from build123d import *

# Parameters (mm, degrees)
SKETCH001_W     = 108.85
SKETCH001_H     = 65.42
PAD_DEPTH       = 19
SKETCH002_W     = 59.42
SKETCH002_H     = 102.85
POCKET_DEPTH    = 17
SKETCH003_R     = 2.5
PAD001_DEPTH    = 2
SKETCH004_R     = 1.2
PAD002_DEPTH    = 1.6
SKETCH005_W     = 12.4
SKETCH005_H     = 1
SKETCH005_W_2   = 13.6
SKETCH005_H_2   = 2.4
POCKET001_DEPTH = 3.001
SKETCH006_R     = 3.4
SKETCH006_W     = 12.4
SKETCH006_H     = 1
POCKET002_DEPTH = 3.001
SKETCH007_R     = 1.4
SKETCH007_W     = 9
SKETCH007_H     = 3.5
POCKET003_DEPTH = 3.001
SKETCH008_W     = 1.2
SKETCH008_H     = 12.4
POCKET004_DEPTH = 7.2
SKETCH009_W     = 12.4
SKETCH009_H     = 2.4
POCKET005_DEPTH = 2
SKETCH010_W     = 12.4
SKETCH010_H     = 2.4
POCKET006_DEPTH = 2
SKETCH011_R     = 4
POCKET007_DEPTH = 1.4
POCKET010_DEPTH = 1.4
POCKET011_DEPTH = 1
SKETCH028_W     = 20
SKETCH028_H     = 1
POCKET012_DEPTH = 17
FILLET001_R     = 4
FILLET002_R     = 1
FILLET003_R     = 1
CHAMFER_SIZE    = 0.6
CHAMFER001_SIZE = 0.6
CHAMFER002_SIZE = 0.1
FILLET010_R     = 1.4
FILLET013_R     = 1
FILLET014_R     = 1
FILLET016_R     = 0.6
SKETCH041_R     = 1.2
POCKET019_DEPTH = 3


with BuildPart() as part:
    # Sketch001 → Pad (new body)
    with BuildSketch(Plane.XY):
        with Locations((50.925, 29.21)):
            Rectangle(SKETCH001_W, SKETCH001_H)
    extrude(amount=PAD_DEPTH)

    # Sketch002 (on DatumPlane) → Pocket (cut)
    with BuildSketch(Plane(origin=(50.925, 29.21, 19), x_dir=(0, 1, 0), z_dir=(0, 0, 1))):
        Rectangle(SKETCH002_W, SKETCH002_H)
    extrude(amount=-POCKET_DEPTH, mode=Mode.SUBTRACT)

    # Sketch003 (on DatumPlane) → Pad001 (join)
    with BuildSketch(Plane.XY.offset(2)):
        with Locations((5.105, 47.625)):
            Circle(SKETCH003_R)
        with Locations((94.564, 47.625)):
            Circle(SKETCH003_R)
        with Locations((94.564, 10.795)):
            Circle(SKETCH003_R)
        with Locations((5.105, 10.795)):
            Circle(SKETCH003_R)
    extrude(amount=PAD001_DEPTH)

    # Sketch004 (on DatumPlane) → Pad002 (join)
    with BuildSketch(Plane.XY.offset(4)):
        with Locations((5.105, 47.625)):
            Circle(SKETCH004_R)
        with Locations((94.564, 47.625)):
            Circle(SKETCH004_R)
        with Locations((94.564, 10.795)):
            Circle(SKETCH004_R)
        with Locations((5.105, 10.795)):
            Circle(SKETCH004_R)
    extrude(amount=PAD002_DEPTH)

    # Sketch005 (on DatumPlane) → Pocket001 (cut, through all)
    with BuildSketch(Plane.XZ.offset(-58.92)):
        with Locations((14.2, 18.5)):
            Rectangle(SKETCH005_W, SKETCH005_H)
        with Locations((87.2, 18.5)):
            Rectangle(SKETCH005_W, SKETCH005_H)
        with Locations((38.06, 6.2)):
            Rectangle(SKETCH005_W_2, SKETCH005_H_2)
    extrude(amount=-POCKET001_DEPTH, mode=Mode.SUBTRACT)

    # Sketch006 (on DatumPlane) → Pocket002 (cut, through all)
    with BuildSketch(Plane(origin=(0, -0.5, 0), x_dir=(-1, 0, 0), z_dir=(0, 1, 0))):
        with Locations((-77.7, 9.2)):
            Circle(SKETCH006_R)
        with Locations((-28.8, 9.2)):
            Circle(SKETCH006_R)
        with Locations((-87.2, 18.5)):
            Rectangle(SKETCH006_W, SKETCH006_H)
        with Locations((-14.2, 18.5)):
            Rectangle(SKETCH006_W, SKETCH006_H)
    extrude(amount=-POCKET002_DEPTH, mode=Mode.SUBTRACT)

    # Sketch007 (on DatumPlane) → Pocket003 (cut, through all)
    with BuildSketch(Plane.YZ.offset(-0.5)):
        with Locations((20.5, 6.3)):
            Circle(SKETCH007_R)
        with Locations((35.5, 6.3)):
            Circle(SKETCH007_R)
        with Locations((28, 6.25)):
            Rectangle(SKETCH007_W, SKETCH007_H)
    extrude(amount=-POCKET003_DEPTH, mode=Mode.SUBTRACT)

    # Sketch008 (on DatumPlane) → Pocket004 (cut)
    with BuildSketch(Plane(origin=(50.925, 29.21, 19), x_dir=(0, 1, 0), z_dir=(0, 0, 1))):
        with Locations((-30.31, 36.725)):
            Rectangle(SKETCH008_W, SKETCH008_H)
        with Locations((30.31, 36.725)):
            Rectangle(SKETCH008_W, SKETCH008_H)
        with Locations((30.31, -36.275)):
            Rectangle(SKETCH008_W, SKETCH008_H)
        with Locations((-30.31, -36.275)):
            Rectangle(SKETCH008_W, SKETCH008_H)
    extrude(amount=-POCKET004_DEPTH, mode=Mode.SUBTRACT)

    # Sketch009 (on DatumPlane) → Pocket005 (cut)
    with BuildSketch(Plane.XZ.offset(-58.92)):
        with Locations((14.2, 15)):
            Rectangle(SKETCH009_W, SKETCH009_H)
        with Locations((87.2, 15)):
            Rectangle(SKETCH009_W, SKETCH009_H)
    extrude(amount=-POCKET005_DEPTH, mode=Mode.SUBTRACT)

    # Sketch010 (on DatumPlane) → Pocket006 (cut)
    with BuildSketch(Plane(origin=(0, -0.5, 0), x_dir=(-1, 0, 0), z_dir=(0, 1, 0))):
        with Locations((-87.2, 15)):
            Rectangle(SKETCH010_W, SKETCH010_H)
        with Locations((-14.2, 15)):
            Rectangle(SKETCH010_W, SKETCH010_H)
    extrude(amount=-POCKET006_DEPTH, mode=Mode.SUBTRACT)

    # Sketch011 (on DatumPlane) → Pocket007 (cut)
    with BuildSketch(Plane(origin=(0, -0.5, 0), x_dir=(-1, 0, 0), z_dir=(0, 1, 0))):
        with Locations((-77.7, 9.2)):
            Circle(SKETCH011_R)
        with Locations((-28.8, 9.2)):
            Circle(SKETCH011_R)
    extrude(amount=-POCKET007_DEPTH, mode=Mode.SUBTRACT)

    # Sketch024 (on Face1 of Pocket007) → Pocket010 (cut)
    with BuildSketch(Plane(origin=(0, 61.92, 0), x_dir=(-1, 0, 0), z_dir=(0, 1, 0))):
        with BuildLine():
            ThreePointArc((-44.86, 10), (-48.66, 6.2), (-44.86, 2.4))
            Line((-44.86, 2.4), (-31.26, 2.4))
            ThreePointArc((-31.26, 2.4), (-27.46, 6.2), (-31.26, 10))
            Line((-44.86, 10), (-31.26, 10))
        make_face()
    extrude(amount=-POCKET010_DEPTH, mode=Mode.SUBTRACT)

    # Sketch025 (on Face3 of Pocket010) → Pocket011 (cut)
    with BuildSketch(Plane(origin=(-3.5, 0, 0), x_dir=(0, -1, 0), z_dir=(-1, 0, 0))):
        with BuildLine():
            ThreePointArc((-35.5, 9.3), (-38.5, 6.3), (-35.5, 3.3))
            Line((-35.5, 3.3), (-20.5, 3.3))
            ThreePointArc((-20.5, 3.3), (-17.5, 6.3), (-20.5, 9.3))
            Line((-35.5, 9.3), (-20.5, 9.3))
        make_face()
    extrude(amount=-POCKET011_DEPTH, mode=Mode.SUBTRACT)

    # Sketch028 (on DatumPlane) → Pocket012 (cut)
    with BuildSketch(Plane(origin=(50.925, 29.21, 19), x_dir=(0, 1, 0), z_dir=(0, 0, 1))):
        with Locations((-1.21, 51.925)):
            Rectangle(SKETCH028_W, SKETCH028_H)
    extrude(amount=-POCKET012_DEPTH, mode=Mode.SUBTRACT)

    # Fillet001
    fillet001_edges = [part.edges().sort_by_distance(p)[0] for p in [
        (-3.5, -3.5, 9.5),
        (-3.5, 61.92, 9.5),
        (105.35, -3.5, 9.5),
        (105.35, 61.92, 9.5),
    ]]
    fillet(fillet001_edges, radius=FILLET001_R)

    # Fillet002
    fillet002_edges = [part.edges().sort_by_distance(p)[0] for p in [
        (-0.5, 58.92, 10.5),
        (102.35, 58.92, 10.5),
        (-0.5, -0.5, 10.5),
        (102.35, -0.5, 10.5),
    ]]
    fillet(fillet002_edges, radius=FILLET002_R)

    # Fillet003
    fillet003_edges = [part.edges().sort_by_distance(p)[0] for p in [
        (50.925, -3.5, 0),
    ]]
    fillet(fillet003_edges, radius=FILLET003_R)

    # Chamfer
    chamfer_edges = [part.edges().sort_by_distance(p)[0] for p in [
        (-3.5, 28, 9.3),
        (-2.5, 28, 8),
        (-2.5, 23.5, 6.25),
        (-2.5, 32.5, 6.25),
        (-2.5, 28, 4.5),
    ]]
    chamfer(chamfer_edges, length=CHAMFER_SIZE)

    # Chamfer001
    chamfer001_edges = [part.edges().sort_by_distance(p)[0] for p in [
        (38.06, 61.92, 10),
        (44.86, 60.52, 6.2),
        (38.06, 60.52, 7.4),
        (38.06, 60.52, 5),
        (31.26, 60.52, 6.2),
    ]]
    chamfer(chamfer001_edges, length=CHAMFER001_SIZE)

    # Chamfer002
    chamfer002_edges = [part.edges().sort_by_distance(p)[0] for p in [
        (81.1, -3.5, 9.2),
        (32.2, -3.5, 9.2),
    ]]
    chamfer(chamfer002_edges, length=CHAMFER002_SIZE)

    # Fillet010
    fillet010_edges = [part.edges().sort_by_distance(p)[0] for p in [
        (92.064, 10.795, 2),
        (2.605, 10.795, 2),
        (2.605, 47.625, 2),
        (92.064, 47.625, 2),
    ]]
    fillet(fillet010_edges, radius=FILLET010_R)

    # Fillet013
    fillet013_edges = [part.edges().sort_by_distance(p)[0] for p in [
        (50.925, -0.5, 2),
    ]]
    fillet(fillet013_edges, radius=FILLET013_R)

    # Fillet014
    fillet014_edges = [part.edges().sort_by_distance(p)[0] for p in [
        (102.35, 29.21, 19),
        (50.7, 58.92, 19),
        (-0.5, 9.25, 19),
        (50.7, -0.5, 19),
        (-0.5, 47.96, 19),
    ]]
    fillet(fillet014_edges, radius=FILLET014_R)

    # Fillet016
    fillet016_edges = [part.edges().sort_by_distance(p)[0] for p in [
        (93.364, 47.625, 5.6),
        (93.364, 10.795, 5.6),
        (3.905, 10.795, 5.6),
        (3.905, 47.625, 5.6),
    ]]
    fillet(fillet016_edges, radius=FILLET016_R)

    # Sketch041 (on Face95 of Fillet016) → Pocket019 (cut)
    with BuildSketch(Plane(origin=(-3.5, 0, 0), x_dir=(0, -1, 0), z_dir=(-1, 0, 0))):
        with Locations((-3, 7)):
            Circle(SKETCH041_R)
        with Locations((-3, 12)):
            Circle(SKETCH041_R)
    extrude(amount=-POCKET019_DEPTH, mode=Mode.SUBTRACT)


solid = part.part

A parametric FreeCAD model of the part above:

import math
import FreeCAD as App
import Part
import Sketcher
from FreeCAD import Vector
Q = App.Units.Quantity


def edges_at(feature, points):
    """Names of the edges that pass closest to the given points."""
    edges = feature.Shape.Edges
    near = lambda p: min(range(len(edges)), key=lambda i: edges[i].distToShape(Part.Vertex(*p))[0])
    return sorted({f"Edge{near(p) + 1}" for p in points})


def add_polygon(sketch, points):
    """Adds a closed chain of lines whose ends are joined by coincident constraints."""
    first, n = sketch.GeometryCount, len(points)
    for a, b in zip(points, points[1:] + points[:1]):
        sketch.addGeometry(Part.LineSegment(App.Vector(*a, 0), App.Vector(*b, 0)), False)
    for i in range(n):
        sketch.addConstraint(Sketcher.Constraint("Coincident", first + i, 2, first + (i + 1) % n, 1))

doc = App.newDocument("Part")
body = doc.addObject("PartDesign::Body", "Body")

# Sketch on XY plane
sketch1 = doc.addObject("Sketcher::SketchObject", "Sketch")
body.addObject(sketch1)
sketch1.AttachmentSupport = (doc.XY_Plane, [""])
sketch1.MapMode = "FlatFace"
add_polygon(sketch1, [(-4, 62), (-4, -4), (105, -4), (105, 62)])  # lines 0-3
sketch1.addConstraint(Sketcher.Constraint("Vertical", 0))
sketch1.addConstraint(Sketcher.Constraint("Horizontal", 1))
sketch1.addConstraint(Sketcher.Constraint("Vertical", 2))
sketch1.addConstraint(Sketcher.Constraint("Horizontal", 3))
sketch1.addConstraint(Sketcher.Constraint("DistanceX", 1, 1, 1, 2, Q("108.85 mm")))
sketch1.addConstraint(Sketcher.Constraint("DistanceY", 0, 2, 0, 1, Q("65.42 mm")))
sketch1.addConstraint(Sketcher.Constraint("DistanceX", 0, 2, -1, 1, Q("3.5 mm")))
sketch1.addConstraint(Sketcher.Constraint("DistanceY", 0, 2, -1, 1, Q("3.5 mm")))
pad1 = doc.addObject("PartDesign::Pad", "Pad")
body.addObject(pad1)
pad1.Profile = sketch1
pad1.Length = 19

# Sketch on XY plane
sketch2 = doc.addObject("Sketcher::SketchObject", "Sketch001")
body.addObject(sketch2)
sketch2.AttachmentSupport = (doc.XY_Plane, [""])
sketch2.MapMode = "FlatFace"
sketch2.AttachmentOffset = App.Placement(Vector(0, 0, 19), App.Rotation())
add_polygon(sketch2, [(0, 0), (102, 0), (102, 59), (0, 59)])  # lines 0-3
sketch2.addConstraint(Sketcher.Constraint("Horizontal", 0))
sketch2.addConstraint(Sketcher.Constraint("Vertical", 1))
sketch2.addConstraint(Sketcher.Constraint("Horizontal", 2))
sketch2.addConstraint(Sketcher.Constraint("Vertical", 3))
sketch2.addConstraint(Sketcher.Constraint("DistanceX", 0, 1, 0, 2, Q("102.85 mm")))
sketch2.addConstraint(Sketcher.Constraint("DistanceY", 1, 1, 1, 2, Q("59.42 mm")))
sketch2.addConstraint(Sketcher.Constraint("DistanceY", 0, 2, -1, 1, Q("0.5 mm")))
sketch2.addConstraint(Sketcher.Constraint("DistanceX", 2, 2, -1, 1, Q("0.5 mm")))
pocket1 = doc.addObject("PartDesign::Pocket", "Pocket")
body.addObject(pocket1)
pocket1.Profile = sketch2
pocket1.Length = 17

# Sketch on XY plane
sketch3 = doc.addObject("Sketcher::SketchObject", "Sketch002")
body.addObject(sketch3)
sketch3.AttachmentSupport = (doc.XY_Plane, [""])
sketch3.MapMode = "FlatFace"
sketch3.AttachmentOffset = App.Placement(Vector(0, 0, 2), App.Rotation())
sketch3.addGeometry(Part.Circle(Vector(5.1, 47.6, 0), Vector(0, 0, 1), 2.5), False)
sketch3.addGeometry(Part.Circle(Vector(94.6, 47.6, 0), Vector(0, 0, 1), 2.5), False)
sketch3.addGeometry(Part.Circle(Vector(94.6, 10.8, 0), Vector(0, 0, 1), 2.5), False)
sketch3.addGeometry(Part.Circle(Vector(5.1, 10.8, 0), Vector(0, 0, 1), 2.5), False)
sketch3.addConstraint(Sketcher.Constraint("Equal", 0, 1))
sketch3.addConstraint(Sketcher.Constraint("Equal", 1, 2))
sketch3.addConstraint(Sketcher.Constraint("Equal", 2, 3))
sketch3.addConstraint(Sketcher.Constraint("Horizontal", 0, 3, 1, 3))
sketch3.addConstraint(Sketcher.Constraint("Horizontal", 2, 3, 3, 3))
sketch3.addConstraint(Sketcher.Constraint("Vertical", 1, 3, 2, 3))
sketch3.addConstraint(Sketcher.Constraint("Vertical", 0, 3, 3, 3))
sketch3.addConstraint(Sketcher.Constraint("Diameter", 0, Q("5 mm")))
sketch3.addConstraint(Sketcher.Constraint("DistanceY", 2, 3, 1, 3, Q("36.83 mm")))
sketch3.addConstraint(Sketcher.Constraint("DistanceX", -1, 1, 0, 3, Q("5.105 mm")))
sketch3.addConstraint(Sketcher.Constraint("DistanceY", -1, 1, 0, 3, Q("47.625 mm")))
sketch3.addConstraint(Sketcher.Constraint("DistanceX", -1, 1, 1, 3, Q("94.564 mm")))
pad2 = doc.addObject("PartDesign::Pad", "Pad001")
body.addObject(pad2)
pad2.Profile = sketch3
pad2.Length = 2

# Sketch on XY plane
sketch4 = doc.addObject("Sketcher::SketchObject", "Sketch003")
body.addObject(sketch4)
sketch4.AttachmentSupport = (doc.XY_Plane, [""])
sketch4.MapMode = "FlatFace"
sketch4.AttachmentOffset = App.Placement(Vector(0, 0, 4), App.Rotation())
sketch4.addGeometry(Part.Circle(Vector(5.1, 47.6, 0), Vector(0, 0, 1), 1.2), False)
sketch4.addGeometry(Part.Circle(Vector(94.6, 47.6, 0), Vector(0, 0, 1), 1.2), False)
sketch4.addGeometry(Part.Circle(Vector(94.6, 10.8, 0), Vector(0, 0, 1), 1.2), False)
sketch4.addGeometry(Part.Circle(Vector(5.1, 10.8, 0), Vector(0, 0, 1), 1.2), False)
sketch4.addConstraint(Sketcher.Constraint("Equal", 0, 1))
sketch4.addConstraint(Sketcher.Constraint("Equal", 1, 2))
sketch4.addConstraint(Sketcher.Constraint("Equal", 2, 3))
sketch4.addConstraint(Sketcher.Constraint("Horizontal", 0, 3, 1, 3))
sketch4.addConstraint(Sketcher.Constraint("Horizontal", 2, 3, 3, 3))
sketch4.addConstraint(Sketcher.Constraint("Vertical", 1, 3, 2, 3))
sketch4.addConstraint(Sketcher.Constraint("Vertical", 0, 3, 3, 3))
sketch4.addConstraint(Sketcher.Constraint("Diameter", 0, Q("2.4 mm")))
sketch4.addConstraint(Sketcher.Constraint("DistanceY", 2, 3, 1, 3, Q("36.83 mm")))
sketch4.addConstraint(Sketcher.Constraint("DistanceX", -1, 1, 0, 3, Q("5.105 mm")))
sketch4.addConstraint(Sketcher.Constraint("DistanceY", -1, 1, 0, 3, Q("47.625 mm")))
sketch4.addConstraint(Sketcher.Constraint("DistanceX", -1, 1, 1, 3, Q("94.564 mm")))
pad3 = doc.addObject("PartDesign::Pad", "Pad002")
body.addObject(pad3)
pad3.Profile = sketch4
pad3.Length = 1.6

# Sketch on XZ plane
sketch5 = doc.addObject("Sketcher::SketchObject", "Sketch004")
body.addObject(sketch5)
sketch5.AttachmentSupport = (doc.XZ_Plane, [""])
sketch5.MapMode = "FlatFace"
sketch5.AttachmentOffset = App.Placement(Vector(0, 0, -58.92), App.Rotation())
add_polygon(sketch5, [(8, 19), (8, 18), (20.4, 18), (20.4, 19)])  # lines 0-3
add_polygon(sketch5, [(81, 19), (81, 18), (93.4, 18), (93.4, 19)])  # lines 4-7
add_polygon(sketch5, [(31.3, 7.4), (31.3, 5), (44.9, 5), (44.9, 7.4)])  # lines 8-11
sketch5.addConstraint(Sketcher.Constraint("Vertical", 0))
sketch5.addConstraint(Sketcher.Constraint("Horizontal", 1))
sketch5.addConstraint(Sketcher.Constraint("Vertical", 2))
sketch5.addConstraint(Sketcher.Constraint("Horizontal", 3))
sketch5.addConstraint(Sketcher.Constraint("Vertical", 4))
sketch5.addConstraint(Sketcher.Constraint("Horizontal", 5))
sketch5.addConstraint(Sketcher.Constraint("Vertical", 6))
sketch5.addConstraint(Sketcher.Constraint("Horizontal", 7))
sketch5.addConstraint(Sketcher.Constraint("Vertical", 8))
sketch5.addConstraint(Sketcher.Constraint("Horizontal", 9))
sketch5.addConstraint(Sketcher.Constraint("Vertical", 10))
sketch5.addConstraint(Sketcher.Constraint("Horizontal", 11))
sketch5.addConstraint(Sketcher.Constraint("Horizontal", 1, 2, 4, 2))
sketch5.addConstraint(Sketcher.Constraint("Horizontal", 3, 2, 6, 2))
sketch5.addConstraint(Sketcher.Constraint("Equal", 3, 5))
sketch5.addConstraint(Sketcher.Constraint("DistanceY", 0, 2, 0, 1, Q("1 mm")))
sketch5.addConstraint(Sketcher.Constraint("DistanceX", 1, 1, 1, 2, Q("12.4 mm")))
sketch5.addConstraint(Sketcher.Constraint("DistanceX", 9, 1, 9, 2, Q("13.6 mm")))
sketch5.addConstraint(Sketcher.Constraint("DistanceY", 8, 2, 8, 1, Q("2.4 mm")))
sketch5.addConstraint(Sketcher.Constraint("DistanceX", -1, 1, 0, 2, Q("8 mm")))
sketch5.addConstraint(Sketcher.Constraint("DistanceY", -1, 1, 0, 2, Q("18 mm")))
sketch5.addConstraint(Sketcher.Constraint("DistanceX", -1, 1, 4, 2, Q("81 mm")))
sketch5.addConstraint(Sketcher.Constraint("DistanceY", -1, 1, 8, 2, Q("5 mm")))
sketch5.addConstraint(Sketcher.Constraint("DistanceX", -1, 1, 8, 2, Q("31.26 mm")))
pocket2 = doc.addObject("PartDesign::Pocket", "Pocket001")
body.addObject(pocket2)
pocket2.Profile = sketch5
pocket2.Type = "ThroughAll"

# Sketch on XZ plane
sketch6 = doc.addObject("Sketcher::SketchObject", "Sketch005")
body.addObject(sketch6)
sketch6.AttachmentSupport = (doc.XZ_Plane, [""])
sketch6.MapMode = "FlatFace"
sketch6.AttachmentOffset = App.Placement(Vector(0, 0, 0.5), App.Rotation())
sketch6.addGeometry(Part.Circle(Vector(77.7, 9.2, 0), Vector(0, 0, 1), 3.4), False)  # 0
sketch6.addGeometry(Part.Circle(Vector(28.8, 9.2, 0), Vector(0, 0, 1), 3.4), False)  # 1
add_polygon(sketch6, [(93.4, 19), (93.4, 18), (81, 18), (81, 19)])  # lines 2-5
add_polygon(sketch6, [(20.4, 19), (20.4, 18), (8, 18), (8, 19)])  # lines 6-9
sketch6.addConstraint(Sketcher.Constraint("Vertical", 2))
sketch6.addConstraint(Sketcher.Constraint("Horizontal", 3))
sketch6.addConstraint(Sketcher.Constraint("Vertical", 4))
sketch6.addConstraint(Sketcher.Constraint("Horizontal", 5))
sketch6.addConstraint(Sketcher.Constraint("Vertical", 6))
sketch6.addConstraint(Sketcher.Constraint("Horizontal", 7))
sketch6.addConstraint(Sketcher.Constraint("Vertical", 8))
sketch6.addConstraint(Sketcher.Constraint("Horizontal", 9))
sketch6.addConstraint(Sketcher.Constraint("Equal", 0, 1))
sketch6.addConstraint(Sketcher.Constraint("Horizontal", 0, 3, 1, 3))
sketch6.addConstraint(Sketcher.Constraint("Horizontal", 3, 2, 6, 2))
sketch6.addConstraint(Sketcher.Constraint("Horizontal", 5, 2, 8, 2))
sketch6.addConstraint(Sketcher.Constraint("Equal", 5, 7))
sketch6.addConstraint(Sketcher.Constraint("Diameter", 0, Q("6.8 mm")))
sketch6.addConstraint(Sketcher.Constraint("DistanceY", 2, 2, 2, 1, Q("1 mm")))
sketch6.addConstraint(Sketcher.Constraint("DistanceX", 3, 2, 3, 1, Q("12.4 mm")))
sketch6.addConstraint(Sketcher.Constraint("DistanceY", -1, 1, 2, 2, Q("18 mm")))
sketch6.addConstraint(Sketcher.Constraint("DistanceX", -1, 1, 3, 2, Q("81 mm")))
sketch6.addConstraint(Sketcher.Constraint("DistanceX", -1, 1, 7, 2, Q("8 mm")))
sketch6.addConstraint(Sketcher.Constraint("DistanceX", -1, 1, 0, 3, Q("77.7 mm")))
sketch6.addConstraint(Sketcher.Constraint("DistanceY", -1, 1, 0, 3, Q("9.2 mm")))
sketch6.addConstraint(Sketcher.Constraint("DistanceX", -1, 1, 1, 3, Q("28.8 mm")))
pocket3 = doc.addObject("PartDesign::Pocket", "Pocket002")
body.addObject(pocket3)
pocket3.Profile = sketch6
pocket3.Type = "ThroughAll"
pocket3.Reversed = True

# Sketch on YZ plane
sketch7 = doc.addObject("Sketcher::SketchObject", "Sketch006")
body.addObject(sketch7)
sketch7.AttachmentSupport = (doc.YZ_Plane, [""])
sketch7.MapMode = "FlatFace"
sketch7.AttachmentOffset = App.Placement(Vector(0, 0, -0.5), App.Rotation())
sketch7.addGeometry(Part.Circle(Vector(20.5, 6.3, 0), Vector(0, 0, 1), 1.4), False)  # 0
sketch7.addGeometry(Part.Circle(Vector(35.5, 6.3, 0), Vector(0, 0, 1), 1.4), False)  # 1
add_polygon(sketch7, [(23.5, 8), (23.5, 4.5), (32.5, 4.5), (32.5, 8)])  # lines 2-5
sketch7.addConstraint(Sketcher.Constraint("Vertical", 2))
sketch7.addConstraint(Sketcher.Constraint("Horizontal", 3))
sketch7.addConstraint(Sketcher.Constraint("Vertical", 4))
sketch7.addConstraint(Sketcher.Constraint("Horizontal", 5))
sketch7.addConstraint(Sketcher.Constraint("Equal", 0, 1))
sketch7.addConstraint(Sketcher.Constraint("Horizontal", 0, 3, 1, 3))
sketch7.addConstraint(Sketcher.Constraint("Diameter", 0, Q("2.8 mm")))
sketch7.addConstraint(Sketcher.Constraint("DistanceX", 3, 1, 3, 2, Q("9 mm")))
sketch7.addConstraint(Sketcher.Constraint("DistanceY", 2, 2, 2, 1, Q("3.5 mm")))
sketch7.addConstraint(Sketcher.Constraint("DistanceY", -1, 1, 4, 2, Q("8 mm")))
sketch7.addConstraint(Sketcher.Constraint("DistanceX", 0, 3, 1, 3, Q("15 mm")))
sketch7.addConstraint(Sketcher.Constraint("DistanceX", 0, 3, 2, 2, Q("3 mm")))
sketch7.addConstraint(Sketcher.Constraint("DistanceX", -1, 1, 0, 3, Q("20.5 mm")))
sketch7.addConstraint(Sketcher.Constraint("DistanceY", -1, 1, 0, 3, Q("6.3 mm")))
pocket4 = doc.addObject("PartDesign::Pocket", "Pocket003")
body.addObject(pocket4)
pocket4.Profile = sketch7
pocket4.Type = "ThroughAll"

# Sketch on XY plane
sketch8 = doc.addObject("Sketcher::SketchObject", "Sketch007")
body.addObject(sketch8)
sketch8.AttachmentSupport = (doc.XY_Plane, [""])
sketch8.MapMode = "FlatFace"
sketch8.AttachmentOffset = App.Placement(Vector(0, 0, 19), App.Rotation())
add_polygon(sketch8, [(8, -1.7), (20.4, -1.7), (20.4, -0.5), (8, -0.5)])  # lines 0-3
add_polygon(sketch8, [(8, 58.9), (20.4, 58.9), (20.4, 60.1), (8, 60.1)])  # lines 4-7
add_polygon(sketch8, [(81, 58.9), (93.4, 58.9), (93.4, 60.1), (81, 60.1)])  # lines 8-11
add_polygon(sketch8, [(81, -1.7), (93.4, -1.7), (93.4, -0.5), (81, -0.5)])  # lines 12-15
sketch8.addConstraint(Sketcher.Constraint("Horizontal", 0))
sketch8.addConstraint(Sketcher.Constraint("Vertical", 1))
sketch8.addConstraint(Sketcher.Constraint("Horizontal", 2))
sketch8.addConstraint(Sketcher.Constraint("Vertical", 3))
sketch8.addConstraint(Sketcher.Constraint("Horizontal", 4))
sketch8.addConstraint(Sketcher.Constraint("Vertical", 5))
sketch8.addConstraint(Sketcher.Constraint("Horizontal", 6))
sketch8.addConstraint(Sketcher.Constraint("Vertical", 7))
sketch8.addConstraint(Sketcher.Constraint("Horizontal", 8))
sketch8.addConstraint(Sketcher.Constraint("Vertical", 9))
sketch8.addConstraint(Sketcher.Constraint("Horizontal", 10))
sketch8.addConstraint(Sketcher.Constraint("Vertical", 11))
sketch8.addConstraint(Sketcher.Constraint("Horizontal", 12))
sketch8.addConstraint(Sketcher.Constraint("Vertical", 13))
sketch8.addConstraint(Sketcher.Constraint("Horizontal", 14))
sketch8.addConstraint(Sketcher.Constraint("Vertical", 15))
sketch8.addConstraint(Sketcher.Constraint("Horizontal", 7, 2, 8, 2))
sketch8.addConstraint(Sketcher.Constraint("Horizontal", 6, 2, 9, 2))
sketch8.addConstraint(Sketcher.Constraint("Horizontal", 3, 2, 12, 2))
sketch8.addConstraint(Sketcher.Constraint("Horizontal", 2, 2, 13, 2))
sketch8.addConstraint(Sketcher.Constraint("Vertical", 1, 2, 4, 2))
sketch8.addConstraint(Sketcher.Constraint("Vertical", 3, 2, 6, 2))
sketch8.addConstraint(Sketcher.Constraint("Vertical", 9, 2, 12, 2))
sketch8.addConstraint(Sketcher.Constraint("Vertical", 11, 2, 14, 2))
sketch8.addConstraint(Sketcher.Constraint("Equal", 6, 8))
sketch8.addConstraint(Sketcher.Constraint("Equal", 3, 5))
sketch8.addConstraint(Sketcher.Constraint("DistanceX", 0, 1, 0, 2, Q("12.4 mm")))
sketch8.addConstraint(Sketcher.Constraint("DistanceY", 1, 1, 1, 2, Q("1.2 mm")))
sketch8.addConstraint(Sketcher.Constraint("DistanceX", -1, 1, 2, 2, Q("8 mm")))
sketch8.addConstraint(Sketcher.Constraint("DistanceX", -1, 1, 10, 2, Q("81 mm")))
sketch8.addConstraint(Sketcher.Constraint("DistanceY", 0, 2, -1, 1, Q("1.7 mm")))
sketch8.addConstraint(Sketcher.Constraint("DistanceY", -1, 1, 4, 2, Q("58.92 mm")))
pocket5 = doc.addObject("PartDesign::Pocket", "Pocket004")
body.addObject(pocket5)
pocket5.Profile = sketch8
pocket5.Length = 7.2

# Sketch on XZ plane
sketch9 = doc.addObject("Sketcher::SketchObject", "Sketch008")
body.addObject(sketch9)
sketch9.AttachmentSupport = (doc.XZ_Plane, [""])
sketch9.MapMode = "FlatFace"
sketch9.AttachmentOffset = App.Placement(Vector(0, 0, -58.92), App.Rotation())
add_polygon(sketch9, [(8, 16.2), (8, 13.8), (20.4, 13.8), (20.4, 16.2)])  # lines 0-3
add_polygon(sketch9, [(81, 16.2), (81, 13.8), (93.4, 13.8), (93.4, 16.2)])  # lines 4-7
sketch9.addConstraint(Sketcher.Constraint("Vertical", 0))
sketch9.addConstraint(Sketcher.Constraint("Horizontal", 1))
sketch9.addConstraint(Sketcher.Constraint("Vertical", 2))
sketch9.addConstraint(Sketcher.Constraint("Horizontal", 3))
sketch9.addConstraint(Sketcher.Constraint("Vertical", 4))
sketch9.addConstraint(Sketcher.Constraint("Horizontal", 5))
sketch9.addConstraint(Sketcher.Constraint("Vertical", 6))
sketch9.addConstraint(Sketcher.Constraint("Horizontal", 7))
sketch9.addConstraint(Sketcher.Constraint("Horizontal", 1, 2, 4, 2))
sketch9.addConstraint(Sketcher.Constraint("Horizontal", 3, 2, 6, 2))
sketch9.addConstraint(Sketcher.Constraint("Equal", 3, 5))
sketch9.addConstraint(Sketcher.Constraint("DistanceX", 1, 1, 1, 2, Q("12.4 mm")))
sketch9.addConstraint(Sketcher.Constraint("DistanceY", 0, 2, 0, 1, Q("2.4 mm")))
sketch9.addConstraint(Sketcher.Constraint("DistanceX", -1, 1, 0, 2, Q("8 mm")))
sketch9.addConstraint(Sketcher.Constraint("DistanceX", -1, 1, 4, 2, Q("81 mm")))
sketch9.addConstraint(Sketcher.Constraint("DistanceY", -1, 1, 0, 2, Q("13.8 mm")))
pocket6 = doc.addObject("PartDesign::Pocket", "Pocket005")
body.addObject(pocket6)
pocket6.Profile = sketch9
pocket6.Length = 2

# Sketch on XZ plane
sketch10 = doc.addObject("Sketcher::SketchObject", "Sketch009")
body.addObject(sketch10)
sketch10.AttachmentSupport = (doc.XZ_Plane, [""])
sketch10.MapMode = "FlatFace"
sketch10.AttachmentOffset = App.Placement(Vector(0, 0, 0.5), App.Rotation())
add_polygon(sketch10, [(93.4, 16.2), (93.4, 13.8), (81, 13.8), (81, 16.2)])  # lines 0-3
add_polygon(sketch10, [(20.4, 16.2), (20.4, 13.8), (8, 13.8), (8, 16.2)])  # lines 4-7
sketch10.addConstraint(Sketcher.Constraint("Vertical", 0))
sketch10.addConstraint(Sketcher.Constraint("Horizontal", 1))
sketch10.addConstraint(Sketcher.Constraint("Vertical", 2))
sketch10.addConstraint(Sketcher.Constraint("Horizontal", 3))
sketch10.addConstraint(Sketcher.Constraint("Vertical", 4))
sketch10.addConstraint(Sketcher.Constraint("Horizontal", 5))
sketch10.addConstraint(Sketcher.Constraint("Vertical", 6))
sketch10.addConstraint(Sketcher.Constraint("Horizontal", 7))
sketch10.addConstraint(Sketcher.Constraint("Horizontal", 1, 2, 4, 2))
sketch10.addConstraint(Sketcher.Constraint("Horizontal", 3, 2, 6, 2))
sketch10.addConstraint(Sketcher.Constraint("Equal", 3, 5))
sketch10.addConstraint(Sketcher.Constraint("DistanceX", 1, 2, 1, 1, Q("12.4 mm")))
sketch10.addConstraint(Sketcher.Constraint("DistanceY", 0, 2, 0, 1, Q("2.4 mm")))
sketch10.addConstraint(Sketcher.Constraint("DistanceX", -1, 1, 1, 2, Q("81 mm")))
sketch10.addConstraint(Sketcher.Constraint("DistanceX", -1, 1, 5, 2, Q("8 mm")))
sketch10.addConstraint(Sketcher.Constraint("DistanceY", -1, 1, 0, 2, Q("13.8 mm")))
pocket7 = doc.addObject("PartDesign::Pocket", "Pocket006")
body.addObject(pocket7)
pocket7.Profile = sketch10
pocket7.Length = 2
pocket7.Reversed = True

# Sketch on XZ plane
sketch11 = doc.addObject("Sketcher::SketchObject", "Sketch010")
body.addObject(sketch11)
sketch11.AttachmentSupport = (doc.XZ_Plane, [""])
sketch11.MapMode = "FlatFace"
sketch11.AttachmentOffset = App.Placement(Vector(0, 0, 0.5), App.Rotation())
sketch11.addGeometry(Part.Circle(Vector(77.7, 9.2, 0), Vector(0, 0, 1), 4), False)
sketch11.addGeometry(Part.Circle(Vector(28.8, 9.2, 0), Vector(0, 0, 1), 4), False)
sketch11.addConstraint(Sketcher.Constraint("Equal", 0, 1))
sketch11.addConstraint(Sketcher.Constraint("Horizontal", 0, 3, 1, 3))
sketch11.addConstraint(Sketcher.Constraint("Diameter", 0, Q("8 mm")))
sketch11.addConstraint(Sketcher.Constraint("DistanceX", -1, 1, 0, 3, Q("77.7 mm")))
sketch11.addConstraint(Sketcher.Constraint("DistanceY", -1, 1, 0, 3, Q("9.2 mm")))
sketch11.addConstraint(Sketcher.Constraint("DistanceX", -1, 1, 1, 3, Q("28.8 mm")))
pocket8 = doc.addObject("PartDesign::Pocket", "Pocket007")
body.addObject(pocket8)
pocket8.Profile = sketch11
pocket8.Length = 1.4
pocket8.Reversed = True

# Sketch on XZ plane
sketch12 = doc.addObject("Sketcher::SketchObject", "Sketch011")
body.addObject(sketch12)
sketch12.AttachmentSupport = (doc.XZ_Plane, [""])
sketch12.MapMode = "FlatFace"
sketch12.AttachmentOffset = App.Placement(Vector(0, 0, -61.92), App.Rotation())
sketch12.addGeometry(Part.ArcOfCircle(Part.Circle(Vector(44.9, 6.2, 0), Vector(0, 0, 1), 3.8), math.radians(-90), math.radians(90)), False)
sketch12.addGeometry(Part.LineSegment(Vector(44.9, 2.4, 0), Vector(31.3, 2.4, 0)), False)
sketch12.addGeometry(Part.ArcOfCircle(Part.Circle(Vector(31.3, 6.2, 0), Vector(0, 0, 1), 3.8), math.radians(90), math.radians(270)), False)
sketch12.addGeometry(Part.LineSegment(Vector(31.3, 10, 0), Vector(44.9, 10, 0)), False)
sketch12.addConstraint(Sketcher.Constraint("Tangent", 0, 1, 1, 1))
sketch12.addConstraint(Sketcher.Constraint("Tangent", 1, 2, 2, 2))
sketch12.addConstraint(Sketcher.Constraint("Tangent", 2, 1, 3, 1))
sketch12.addConstraint(Sketcher.Constraint("Tangent", 3, 2, 0, 2))
sketch12.addConstraint(Sketcher.Constraint("Horizontal", 1))
sketch12.addConstraint(Sketcher.Constraint("Horizontal", 3))
sketch12.addConstraint(Sketcher.Constraint("Radius", 0, Q("3.8 mm")))
sketch12.addConstraint(Sketcher.Constraint("DistanceX", 1, 2, 1, 1, Q("13.6 mm")))
sketch12.addConstraint(Sketcher.Constraint("DistanceY", -1, 1, 2, 1, Q("10 mm")))
sketch12.addConstraint(Sketcher.Constraint("DistanceX", -1, 1, 0, 3, Q("44.86 mm")))
pocket9 = doc.addObject("PartDesign::Pocket", "Pocket008")
body.addObject(pocket9)
pocket9.Profile = sketch12
pocket9.Length = 1.4
pocket9.Reversed = True

# Sketch on YZ plane
sketch13 = doc.addObject("Sketcher::SketchObject", "Sketch012")
body.addObject(sketch13)
sketch13.AttachmentSupport = (doc.YZ_Plane, [""])
sketch13.MapMode = "FlatFace"
sketch13.AttachmentOffset = App.Placement(Vector(0, 0, -3.5), App.Rotation())
sketch13.addGeometry(Part.ArcOfCircle(Part.Circle(Vector(35.5, 6.3, 0), Vector(0, 0, 1), 3), math.radians(-90), math.radians(90)), False)
sketch13.addGeometry(Part.LineSegment(Vector(35.5, 3.3, 0), Vector(20.5, 3.3, 0)), False)
sketch13.addGeometry(Part.ArcOfCircle(Part.Circle(Vector(20.5, 6.3, 0), Vector(0, 0, 1), 3), math.radians(90), math.radians(270)), False)
sketch13.addGeometry(Part.LineSegment(Vector(20.5, 9.3, 0), Vector(35.5, 9.3, 0)), False)
sketch13.addConstraint(Sketcher.Constraint("Tangent", 0, 1, 1, 1))
sketch13.addConstraint(Sketcher.Constraint("Tangent", 1, 2, 2, 2))
sketch13.addConstraint(Sketcher.Constraint("Tangent", 2, 1, 3, 1))
sketch13.addConstraint(Sketcher.Constraint("Tangent", 3, 2, 0, 2))
sketch13.addConstraint(Sketcher.Constraint("Horizontal", 1))
sketch13.addConstraint(Sketcher.Constraint("Horizontal", 3))
sketch13.addConstraint(Sketcher.Constraint("Radius", 0, Q("3 mm")))
sketch13.addConstraint(Sketcher.Constraint("DistanceX", 1, 2, 1, 1, Q("15 mm")))
sketch13.addConstraint(Sketcher.Constraint("DistanceX", -1, 1, 0, 3, Q("35.5 mm")))
sketch13.addConstraint(Sketcher.Constraint("DistanceY", -1, 1, 0, 3, Q("6.3 mm")))
pocket10 = doc.addObject("PartDesign::Pocket", "Pocket009")
body.addObject(pocket10)
pocket10.Profile = sketch13
pocket10.Length = 1
pocket10.Reversed = True

# Sketch on XY plane
sketch14 = doc.addObject("Sketcher::SketchObject", "Sketch013")
body.addObject(sketch14)
sketch14.AttachmentSupport = (doc.XY_Plane, [""])
sketch14.MapMode = "FlatFace"
sketch14.AttachmentOffset = App.Placement(Vector(0, 0, 19), App.Rotation())
add_polygon(sketch14, [(-1.5, 18), (-0.5, 18), (-0.5, 38), (-1.5, 38)])  # lines 0-3
sketch14.addConstraint(Sketcher.Constraint("Horizontal", 0))
sketch14.addConstraint(Sketcher.Constraint("Vertical", 1))
sketch14.addConstraint(Sketcher.Constraint("Horizontal", 2))
sketch14.addConstraint(Sketcher.Constraint("Vertical", 3))
sketch14.addConstraint(Sketcher.Constraint("DistanceX", 0, 1, 0, 2, Q("1 mm")))
sketch14.addConstraint(Sketcher.Constraint("DistanceY", 1, 1, 1, 2, Q("20 mm")))
sketch14.addConstraint(Sketcher.Constraint("DistanceY", -1, 1, 0, 2, Q("18 mm")))
sketch14.addConstraint(Sketcher.Constraint("DistanceX", 0, 2, -1, 1, Q("0.5 mm")))
pocket11 = doc.addObject("PartDesign::Pocket", "Pocket010")
body.addObject(pocket11)
pocket11.Profile = sketch14
pocket11.Length = 17
doc.recompute()

fillet = doc.addObject("PartDesign::Fillet", "Fillet")
body.addObject(fillet)
fillet.Base = (pocket11, edges_at(pocket11, [
    (-3.5, -3.5, 9.5),
    (-3.5, 61.92, 9.5),
    (105.35, -3.5, 9.5),
    (105.35, 61.92, 9.5),
]))
fillet.Radius = 4
doc.recompute()

fillet2 = doc.addObject("PartDesign::Fillet", "Fillet001")
body.addObject(fillet2)
fillet2.Base = (fillet, edges_at(fillet, [
    (-0.5, 58.92, 10.5),
    (102.35, 58.92, 10.5),
    (-0.5, -0.5, 10.5),
    (102.35, -0.5, 10.5),
]))
fillet2.Radius = 1
doc.recompute()

fillet3 = doc.addObject("PartDesign::Fillet", "Fillet002")
body.addObject(fillet3)
fillet3.Base = (fillet2, edges_at(fillet2, [(50.925, -3.5, 0)]))
fillet3.Radius = 1
doc.recompute()

chamfer = doc.addObject("PartDesign::Chamfer", "Chamfer")
body.addObject(chamfer)
chamfer.Base = (fillet3, edges_at(fillet3, [
    (-3.5, 28, 9.3),
    (-2.5, 28, 8),
    (-2.5, 23.5, 6.25),
    (-2.5, 32.5, 6.25),
    (-2.5, 28, 4.5),
]))
chamfer.Size = 0.6
doc.recompute()

chamfer2 = doc.addObject("PartDesign::Chamfer", "Chamfer001")
body.addObject(chamfer2)
chamfer2.Base = (chamfer, edges_at(chamfer, [
    (38.06, 61.92, 10),
    (44.86, 60.52, 6.2),
    (38.06, 60.52, 7.4),
    (38.06, 60.52, 5),
    (31.26, 60.52, 6.2),
]))
chamfer2.Size = 0.6
doc.recompute()

chamfer3 = doc.addObject("PartDesign::Chamfer", "Chamfer002")
body.addObject(chamfer3)
chamfer3.Base = (chamfer2, edges_at(chamfer2, [(81.1, -3.5, 9.2), (32.2, -3.5, 9.2)]))
chamfer3.Size = 0.1
doc.recompute()

fillet4 = doc.addObject("PartDesign::Fillet", "Fillet003")
body.addObject(fillet4)
fillet4.Base = (chamfer3, edges_at(chamfer3, [
    (92.064, 10.795, 2),
    (2.605, 10.795, 2),
    (2.605, 47.625, 2),
    (92.064, 47.625, 2),
]))
fillet4.Radius = 1.4
doc.recompute()

fillet5 = doc.addObject("PartDesign::Fillet", "Fillet004")
body.addObject(fillet5)
fillet5.Base = (fillet4, edges_at(fillet4, [(50.925, -0.5, 2)]))
fillet5.Radius = 1
doc.recompute()

fillet6 = doc.addObject("PartDesign::Fillet", "Fillet005")
body.addObject(fillet6)
fillet6.Base = (fillet5, edges_at(fillet5, [
    (102.35, 29.21, 19),
    (50.7, 58.92, 19),
    (-0.5, 9.25, 19),
    (50.7, -0.5, 19),
    (-0.5, 47.96, 19),
]))
fillet6.Radius = 1
doc.recompute()

fillet7 = doc.addObject("PartDesign::Fillet", "Fillet006")
body.addObject(fillet7)
fillet7.Base = (fillet6, edges_at(fillet6, [
    (93.364, 47.625, 5.6),
    (93.364, 10.795, 5.6),
    (3.905, 10.795, 5.6),
    (3.905, 47.625, 5.6),
]))
fillet7.Radius = 0.6

# Sketch on YZ plane
sketch15 = doc.addObject("Sketcher::SketchObject", "Sketch014")
body.addObject(sketch15)
sketch15.AttachmentSupport = (doc.YZ_Plane, [""])
sketch15.MapMode = "FlatFace"
sketch15.AttachmentOffset = App.Placement(Vector(0, 0, -3.5), App.Rotation())
sketch15.addGeometry(Part.Circle(Vector(3, 7, 0), Vector(0, 0, 1), 1.2), False)
sketch15.addGeometry(Part.Circle(Vector(3, 12, 0), Vector(0, 0, 1), 1.2), False)
sketch15.addConstraint(Sketcher.Constraint("Equal", 0, 1))
sketch15.addConstraint(Sketcher.Constraint("Vertical", 0, 3, 1, 3))
sketch15.addConstraint(Sketcher.Constraint("Diameter", 0, Q("2.4 mm")))
sketch15.addConstraint(Sketcher.Constraint("DistanceX", -1, 1, 0, 3, Q("3 mm")))
sketch15.addConstraint(Sketcher.Constraint("DistanceY", -1, 1, 0, 3, Q("7 mm")))
sketch15.addConstraint(Sketcher.Constraint("DistanceY", -1, 1, 1, 3, Q("12 mm")))
pocket12 = doc.addObject("PartDesign::Pocket", "Pocket011")
body.addObject(pocket12)
pocket12.Profile = sketch15
pocket12.Length = 3
pocket12.Reversed = True

doc.recompute()
